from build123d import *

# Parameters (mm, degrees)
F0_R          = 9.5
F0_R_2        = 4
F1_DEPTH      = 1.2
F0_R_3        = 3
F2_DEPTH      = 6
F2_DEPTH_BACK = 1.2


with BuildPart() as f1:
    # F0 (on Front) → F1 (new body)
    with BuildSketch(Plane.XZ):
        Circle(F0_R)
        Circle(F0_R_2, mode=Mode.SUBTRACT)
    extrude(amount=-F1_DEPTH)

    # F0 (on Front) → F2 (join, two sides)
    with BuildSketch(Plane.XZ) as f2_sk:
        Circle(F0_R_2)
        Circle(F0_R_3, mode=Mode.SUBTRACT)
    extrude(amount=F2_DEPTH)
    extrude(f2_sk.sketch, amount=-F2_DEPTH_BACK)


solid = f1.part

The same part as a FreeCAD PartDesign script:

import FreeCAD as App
import Part
import Sketcher
Q = App.Units.Quantity

doc = App.newDocument("Part")
body = doc.addObject("PartDesign::Body", "Body")

sketch1 = body.newObject("Sketcher::SketchObject", "Sketch")
sketch1.AttachmentSupport = (doc.getObject("XZ_Plane"), [""])
sketch1.MapMode = "FlatFace"
sketch1.addGeometry(Part.Circle(App.Vector(0, 0, 0), App.Vector(0, 0, 1), 9.5), False)
sketch1.addGeometry(Part.Circle(App.Vector(0, 0, 0), App.Vector(0, 0, 1), 4), False)
sketch1.addConstraint(Sketcher.Constraint("Coincident", 0, 3, -1, 1))
sketch1.addConstraint(Sketcher.Constraint("Coincident", 1, 3, -1, 1))
sketch1.addConstraint(Sketcher.Constraint("Diameter", 0, Q("19 mm")))
sketch1.addConstraint(Sketcher.Constraint("Diameter", 1, Q("8 mm")))
pad1 = body.newObject("PartDesign::Pad", "Pad")
pad1.Profile = sketch1
pad1.Length = 1.2
pad1.Reversed = True

sketch2 = body.newObject("Sketcher::SketchObject", "Sketch001")
sketch2.AttachmentSupport = (doc.getObject("XZ_Plane"), [""])
sketch2.MapMode = "FlatFace"
sketch2.addGeometry(Part.Circle(App.Vector(0, 0, 0), App.Vector(0, 0, 1), 4), False)
sketch2.addGeometry(Part.Circle(App.Vector(0, 0, 0), App.Vector(0, 0, 1), 3), False)
sketch2.addConstraint(Sketcher.Constraint("Coincident", 0, 3, -1, 1))
sketch2.addConstraint(Sketcher.Constraint("Coincident", 1, 3, -1, 1))
sketch2.addConstraint(Sketcher.Constraint("Diameter", 0, Q("8 mm")))
sketch2.addConstraint(Sketcher.Constraint("Diameter", 1, Q("6 mm")))
pad2 = body.newObject("PartDesign::Pad", "Pad001")
pad2.Profile = sketch2
pad2.Type = "TwoLengths"
pad2.Length = 6
pad2.Length2 = 1.2

doc.recompute()
